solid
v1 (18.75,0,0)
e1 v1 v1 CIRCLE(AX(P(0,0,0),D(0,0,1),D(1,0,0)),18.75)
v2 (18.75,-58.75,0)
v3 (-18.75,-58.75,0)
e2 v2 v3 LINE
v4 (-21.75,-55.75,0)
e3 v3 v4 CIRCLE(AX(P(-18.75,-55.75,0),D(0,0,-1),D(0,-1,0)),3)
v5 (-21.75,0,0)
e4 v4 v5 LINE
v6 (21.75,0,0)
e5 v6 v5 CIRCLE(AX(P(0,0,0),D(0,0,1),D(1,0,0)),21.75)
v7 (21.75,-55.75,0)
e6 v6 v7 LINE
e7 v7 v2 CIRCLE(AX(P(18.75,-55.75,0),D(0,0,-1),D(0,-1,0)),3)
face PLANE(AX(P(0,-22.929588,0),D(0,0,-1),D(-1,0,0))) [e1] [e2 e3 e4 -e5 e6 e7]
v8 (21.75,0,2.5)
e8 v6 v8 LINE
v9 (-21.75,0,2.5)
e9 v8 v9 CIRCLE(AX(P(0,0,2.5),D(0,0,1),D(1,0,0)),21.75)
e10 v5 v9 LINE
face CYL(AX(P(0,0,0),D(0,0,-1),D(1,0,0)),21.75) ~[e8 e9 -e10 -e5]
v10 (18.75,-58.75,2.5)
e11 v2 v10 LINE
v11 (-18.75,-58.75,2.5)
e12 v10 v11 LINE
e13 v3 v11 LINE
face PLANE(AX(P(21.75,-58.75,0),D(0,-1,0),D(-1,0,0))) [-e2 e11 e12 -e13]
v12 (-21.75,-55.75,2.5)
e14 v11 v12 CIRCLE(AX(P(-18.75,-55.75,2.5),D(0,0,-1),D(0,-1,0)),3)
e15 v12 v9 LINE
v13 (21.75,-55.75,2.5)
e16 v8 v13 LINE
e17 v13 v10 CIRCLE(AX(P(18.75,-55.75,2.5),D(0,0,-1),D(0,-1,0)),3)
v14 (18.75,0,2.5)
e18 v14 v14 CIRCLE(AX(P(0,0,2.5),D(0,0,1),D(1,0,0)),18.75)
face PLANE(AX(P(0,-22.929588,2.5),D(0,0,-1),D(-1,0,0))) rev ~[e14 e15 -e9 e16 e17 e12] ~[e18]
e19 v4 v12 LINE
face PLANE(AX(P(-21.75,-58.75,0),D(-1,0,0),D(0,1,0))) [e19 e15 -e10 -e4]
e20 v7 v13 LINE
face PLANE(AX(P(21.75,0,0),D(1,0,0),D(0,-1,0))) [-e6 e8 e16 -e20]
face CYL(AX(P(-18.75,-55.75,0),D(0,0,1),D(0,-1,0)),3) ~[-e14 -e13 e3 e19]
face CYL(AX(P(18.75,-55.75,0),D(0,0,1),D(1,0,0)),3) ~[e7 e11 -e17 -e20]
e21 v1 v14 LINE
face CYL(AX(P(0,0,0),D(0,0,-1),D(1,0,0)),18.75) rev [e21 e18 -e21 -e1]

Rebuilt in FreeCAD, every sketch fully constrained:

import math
import FreeCAD as App
import Part
import Sketcher


def edges_at(feature, points):
    """Names of the edges that pass closest to the given points."""
    edges = feature.Shape.Edges
    near = lambda p: min(range(len(edges)), key=lambda i: edges[i].distToShape(Part.Vertex(*p))[0])
    return sorted({f"Edge{near(p) + 1}" for p in points})

doc = App.newDocument("Part")
body = doc.addObject("PartDesign::Body", "Body")

# Sketch on XY plane
sketch1 = body.newObject("Sketcher::SketchObject", "Sketch")
sketch1.AttachmentSupport = (doc.getObject("XY_Plane"), [""])
sketch1.MapMode = "FlatFace"
sketch1.addGeometry(Part.LineSegment(App.Vector(22, -59, 0), App.Vector(22, 0, 0)), False)
sketch1.addGeometry(Part.ArcOfCircle(Part.Circle(App.Vector(0, 0, 0), App.Vector(0, 0, 1), 22), math.radians(0), math.radians(180)), False)
sketch1.addGeometry(Part.LineSegment(App.Vector(-22, 0, 0), App.Vector(-22, -59, 0)), False)
sketch1.addGeometry(Part.LineSegment(App.Vector(-22, -59, 0), App.Vector(22, -59, 0)), False)
sketch1.addGeometry(Part.Circle(App.Vector(0, 0, 0), App.Vector(0, 0, 1), 19), False)
sketch1.addConstraint(Sketcher.Constraint("Tangent", 0, 2, 1, 1))
sketch1.addConstraint(Sketcher.Constraint("Tangent", 1, 2, 2, 1))
sketch1.addConstraint(Sketcher.Constraint("Coincident", 2, 2, 3, 1))
sketch1.addConstraint(Sketcher.Constraint("Coincident", 3, 2, 0, 1))
sketch1.addConstraint(Sketcher.Constraint("Vertical", 0))
sketch1.addConstraint(Sketcher.Constraint("Vertical", 2))
sketch1.addConstraint(Sketcher.Constraint("Horizontal", 3))
sketch1.addConstraint(Sketcher.Constraint("Coincident", 1, 3, -1, 1))
sketch1.addConstraint(Sketcher.Constraint("Coincident", 4, 3, -1, 1))
sketch1.addConstraint(Sketcher.Constraint("Diameter", 4, 37.5))
sketch1.addConstraint(Sketcher.Constraint("Radius", 1, 21.75))
sketch1.addConstraint(Sketcher.Constraint("DistanceY", 0, 1, 0, 2, 58.75))
pad1 = body.newObject("PartDesign::Pad", "Pad")
pad1.Profile = sketch1
pad1.Length = 2.5
doc.recompute()

fillet = body.newObject("PartDesign::Fillet", "Fillet")
fillet.Base = (pad1, edges_at(pad1, [(-21.75, -58.75, 1.25), (21.75, -58.75, 1.25)]))
fillet.Radius = 3

doc.recompute()
